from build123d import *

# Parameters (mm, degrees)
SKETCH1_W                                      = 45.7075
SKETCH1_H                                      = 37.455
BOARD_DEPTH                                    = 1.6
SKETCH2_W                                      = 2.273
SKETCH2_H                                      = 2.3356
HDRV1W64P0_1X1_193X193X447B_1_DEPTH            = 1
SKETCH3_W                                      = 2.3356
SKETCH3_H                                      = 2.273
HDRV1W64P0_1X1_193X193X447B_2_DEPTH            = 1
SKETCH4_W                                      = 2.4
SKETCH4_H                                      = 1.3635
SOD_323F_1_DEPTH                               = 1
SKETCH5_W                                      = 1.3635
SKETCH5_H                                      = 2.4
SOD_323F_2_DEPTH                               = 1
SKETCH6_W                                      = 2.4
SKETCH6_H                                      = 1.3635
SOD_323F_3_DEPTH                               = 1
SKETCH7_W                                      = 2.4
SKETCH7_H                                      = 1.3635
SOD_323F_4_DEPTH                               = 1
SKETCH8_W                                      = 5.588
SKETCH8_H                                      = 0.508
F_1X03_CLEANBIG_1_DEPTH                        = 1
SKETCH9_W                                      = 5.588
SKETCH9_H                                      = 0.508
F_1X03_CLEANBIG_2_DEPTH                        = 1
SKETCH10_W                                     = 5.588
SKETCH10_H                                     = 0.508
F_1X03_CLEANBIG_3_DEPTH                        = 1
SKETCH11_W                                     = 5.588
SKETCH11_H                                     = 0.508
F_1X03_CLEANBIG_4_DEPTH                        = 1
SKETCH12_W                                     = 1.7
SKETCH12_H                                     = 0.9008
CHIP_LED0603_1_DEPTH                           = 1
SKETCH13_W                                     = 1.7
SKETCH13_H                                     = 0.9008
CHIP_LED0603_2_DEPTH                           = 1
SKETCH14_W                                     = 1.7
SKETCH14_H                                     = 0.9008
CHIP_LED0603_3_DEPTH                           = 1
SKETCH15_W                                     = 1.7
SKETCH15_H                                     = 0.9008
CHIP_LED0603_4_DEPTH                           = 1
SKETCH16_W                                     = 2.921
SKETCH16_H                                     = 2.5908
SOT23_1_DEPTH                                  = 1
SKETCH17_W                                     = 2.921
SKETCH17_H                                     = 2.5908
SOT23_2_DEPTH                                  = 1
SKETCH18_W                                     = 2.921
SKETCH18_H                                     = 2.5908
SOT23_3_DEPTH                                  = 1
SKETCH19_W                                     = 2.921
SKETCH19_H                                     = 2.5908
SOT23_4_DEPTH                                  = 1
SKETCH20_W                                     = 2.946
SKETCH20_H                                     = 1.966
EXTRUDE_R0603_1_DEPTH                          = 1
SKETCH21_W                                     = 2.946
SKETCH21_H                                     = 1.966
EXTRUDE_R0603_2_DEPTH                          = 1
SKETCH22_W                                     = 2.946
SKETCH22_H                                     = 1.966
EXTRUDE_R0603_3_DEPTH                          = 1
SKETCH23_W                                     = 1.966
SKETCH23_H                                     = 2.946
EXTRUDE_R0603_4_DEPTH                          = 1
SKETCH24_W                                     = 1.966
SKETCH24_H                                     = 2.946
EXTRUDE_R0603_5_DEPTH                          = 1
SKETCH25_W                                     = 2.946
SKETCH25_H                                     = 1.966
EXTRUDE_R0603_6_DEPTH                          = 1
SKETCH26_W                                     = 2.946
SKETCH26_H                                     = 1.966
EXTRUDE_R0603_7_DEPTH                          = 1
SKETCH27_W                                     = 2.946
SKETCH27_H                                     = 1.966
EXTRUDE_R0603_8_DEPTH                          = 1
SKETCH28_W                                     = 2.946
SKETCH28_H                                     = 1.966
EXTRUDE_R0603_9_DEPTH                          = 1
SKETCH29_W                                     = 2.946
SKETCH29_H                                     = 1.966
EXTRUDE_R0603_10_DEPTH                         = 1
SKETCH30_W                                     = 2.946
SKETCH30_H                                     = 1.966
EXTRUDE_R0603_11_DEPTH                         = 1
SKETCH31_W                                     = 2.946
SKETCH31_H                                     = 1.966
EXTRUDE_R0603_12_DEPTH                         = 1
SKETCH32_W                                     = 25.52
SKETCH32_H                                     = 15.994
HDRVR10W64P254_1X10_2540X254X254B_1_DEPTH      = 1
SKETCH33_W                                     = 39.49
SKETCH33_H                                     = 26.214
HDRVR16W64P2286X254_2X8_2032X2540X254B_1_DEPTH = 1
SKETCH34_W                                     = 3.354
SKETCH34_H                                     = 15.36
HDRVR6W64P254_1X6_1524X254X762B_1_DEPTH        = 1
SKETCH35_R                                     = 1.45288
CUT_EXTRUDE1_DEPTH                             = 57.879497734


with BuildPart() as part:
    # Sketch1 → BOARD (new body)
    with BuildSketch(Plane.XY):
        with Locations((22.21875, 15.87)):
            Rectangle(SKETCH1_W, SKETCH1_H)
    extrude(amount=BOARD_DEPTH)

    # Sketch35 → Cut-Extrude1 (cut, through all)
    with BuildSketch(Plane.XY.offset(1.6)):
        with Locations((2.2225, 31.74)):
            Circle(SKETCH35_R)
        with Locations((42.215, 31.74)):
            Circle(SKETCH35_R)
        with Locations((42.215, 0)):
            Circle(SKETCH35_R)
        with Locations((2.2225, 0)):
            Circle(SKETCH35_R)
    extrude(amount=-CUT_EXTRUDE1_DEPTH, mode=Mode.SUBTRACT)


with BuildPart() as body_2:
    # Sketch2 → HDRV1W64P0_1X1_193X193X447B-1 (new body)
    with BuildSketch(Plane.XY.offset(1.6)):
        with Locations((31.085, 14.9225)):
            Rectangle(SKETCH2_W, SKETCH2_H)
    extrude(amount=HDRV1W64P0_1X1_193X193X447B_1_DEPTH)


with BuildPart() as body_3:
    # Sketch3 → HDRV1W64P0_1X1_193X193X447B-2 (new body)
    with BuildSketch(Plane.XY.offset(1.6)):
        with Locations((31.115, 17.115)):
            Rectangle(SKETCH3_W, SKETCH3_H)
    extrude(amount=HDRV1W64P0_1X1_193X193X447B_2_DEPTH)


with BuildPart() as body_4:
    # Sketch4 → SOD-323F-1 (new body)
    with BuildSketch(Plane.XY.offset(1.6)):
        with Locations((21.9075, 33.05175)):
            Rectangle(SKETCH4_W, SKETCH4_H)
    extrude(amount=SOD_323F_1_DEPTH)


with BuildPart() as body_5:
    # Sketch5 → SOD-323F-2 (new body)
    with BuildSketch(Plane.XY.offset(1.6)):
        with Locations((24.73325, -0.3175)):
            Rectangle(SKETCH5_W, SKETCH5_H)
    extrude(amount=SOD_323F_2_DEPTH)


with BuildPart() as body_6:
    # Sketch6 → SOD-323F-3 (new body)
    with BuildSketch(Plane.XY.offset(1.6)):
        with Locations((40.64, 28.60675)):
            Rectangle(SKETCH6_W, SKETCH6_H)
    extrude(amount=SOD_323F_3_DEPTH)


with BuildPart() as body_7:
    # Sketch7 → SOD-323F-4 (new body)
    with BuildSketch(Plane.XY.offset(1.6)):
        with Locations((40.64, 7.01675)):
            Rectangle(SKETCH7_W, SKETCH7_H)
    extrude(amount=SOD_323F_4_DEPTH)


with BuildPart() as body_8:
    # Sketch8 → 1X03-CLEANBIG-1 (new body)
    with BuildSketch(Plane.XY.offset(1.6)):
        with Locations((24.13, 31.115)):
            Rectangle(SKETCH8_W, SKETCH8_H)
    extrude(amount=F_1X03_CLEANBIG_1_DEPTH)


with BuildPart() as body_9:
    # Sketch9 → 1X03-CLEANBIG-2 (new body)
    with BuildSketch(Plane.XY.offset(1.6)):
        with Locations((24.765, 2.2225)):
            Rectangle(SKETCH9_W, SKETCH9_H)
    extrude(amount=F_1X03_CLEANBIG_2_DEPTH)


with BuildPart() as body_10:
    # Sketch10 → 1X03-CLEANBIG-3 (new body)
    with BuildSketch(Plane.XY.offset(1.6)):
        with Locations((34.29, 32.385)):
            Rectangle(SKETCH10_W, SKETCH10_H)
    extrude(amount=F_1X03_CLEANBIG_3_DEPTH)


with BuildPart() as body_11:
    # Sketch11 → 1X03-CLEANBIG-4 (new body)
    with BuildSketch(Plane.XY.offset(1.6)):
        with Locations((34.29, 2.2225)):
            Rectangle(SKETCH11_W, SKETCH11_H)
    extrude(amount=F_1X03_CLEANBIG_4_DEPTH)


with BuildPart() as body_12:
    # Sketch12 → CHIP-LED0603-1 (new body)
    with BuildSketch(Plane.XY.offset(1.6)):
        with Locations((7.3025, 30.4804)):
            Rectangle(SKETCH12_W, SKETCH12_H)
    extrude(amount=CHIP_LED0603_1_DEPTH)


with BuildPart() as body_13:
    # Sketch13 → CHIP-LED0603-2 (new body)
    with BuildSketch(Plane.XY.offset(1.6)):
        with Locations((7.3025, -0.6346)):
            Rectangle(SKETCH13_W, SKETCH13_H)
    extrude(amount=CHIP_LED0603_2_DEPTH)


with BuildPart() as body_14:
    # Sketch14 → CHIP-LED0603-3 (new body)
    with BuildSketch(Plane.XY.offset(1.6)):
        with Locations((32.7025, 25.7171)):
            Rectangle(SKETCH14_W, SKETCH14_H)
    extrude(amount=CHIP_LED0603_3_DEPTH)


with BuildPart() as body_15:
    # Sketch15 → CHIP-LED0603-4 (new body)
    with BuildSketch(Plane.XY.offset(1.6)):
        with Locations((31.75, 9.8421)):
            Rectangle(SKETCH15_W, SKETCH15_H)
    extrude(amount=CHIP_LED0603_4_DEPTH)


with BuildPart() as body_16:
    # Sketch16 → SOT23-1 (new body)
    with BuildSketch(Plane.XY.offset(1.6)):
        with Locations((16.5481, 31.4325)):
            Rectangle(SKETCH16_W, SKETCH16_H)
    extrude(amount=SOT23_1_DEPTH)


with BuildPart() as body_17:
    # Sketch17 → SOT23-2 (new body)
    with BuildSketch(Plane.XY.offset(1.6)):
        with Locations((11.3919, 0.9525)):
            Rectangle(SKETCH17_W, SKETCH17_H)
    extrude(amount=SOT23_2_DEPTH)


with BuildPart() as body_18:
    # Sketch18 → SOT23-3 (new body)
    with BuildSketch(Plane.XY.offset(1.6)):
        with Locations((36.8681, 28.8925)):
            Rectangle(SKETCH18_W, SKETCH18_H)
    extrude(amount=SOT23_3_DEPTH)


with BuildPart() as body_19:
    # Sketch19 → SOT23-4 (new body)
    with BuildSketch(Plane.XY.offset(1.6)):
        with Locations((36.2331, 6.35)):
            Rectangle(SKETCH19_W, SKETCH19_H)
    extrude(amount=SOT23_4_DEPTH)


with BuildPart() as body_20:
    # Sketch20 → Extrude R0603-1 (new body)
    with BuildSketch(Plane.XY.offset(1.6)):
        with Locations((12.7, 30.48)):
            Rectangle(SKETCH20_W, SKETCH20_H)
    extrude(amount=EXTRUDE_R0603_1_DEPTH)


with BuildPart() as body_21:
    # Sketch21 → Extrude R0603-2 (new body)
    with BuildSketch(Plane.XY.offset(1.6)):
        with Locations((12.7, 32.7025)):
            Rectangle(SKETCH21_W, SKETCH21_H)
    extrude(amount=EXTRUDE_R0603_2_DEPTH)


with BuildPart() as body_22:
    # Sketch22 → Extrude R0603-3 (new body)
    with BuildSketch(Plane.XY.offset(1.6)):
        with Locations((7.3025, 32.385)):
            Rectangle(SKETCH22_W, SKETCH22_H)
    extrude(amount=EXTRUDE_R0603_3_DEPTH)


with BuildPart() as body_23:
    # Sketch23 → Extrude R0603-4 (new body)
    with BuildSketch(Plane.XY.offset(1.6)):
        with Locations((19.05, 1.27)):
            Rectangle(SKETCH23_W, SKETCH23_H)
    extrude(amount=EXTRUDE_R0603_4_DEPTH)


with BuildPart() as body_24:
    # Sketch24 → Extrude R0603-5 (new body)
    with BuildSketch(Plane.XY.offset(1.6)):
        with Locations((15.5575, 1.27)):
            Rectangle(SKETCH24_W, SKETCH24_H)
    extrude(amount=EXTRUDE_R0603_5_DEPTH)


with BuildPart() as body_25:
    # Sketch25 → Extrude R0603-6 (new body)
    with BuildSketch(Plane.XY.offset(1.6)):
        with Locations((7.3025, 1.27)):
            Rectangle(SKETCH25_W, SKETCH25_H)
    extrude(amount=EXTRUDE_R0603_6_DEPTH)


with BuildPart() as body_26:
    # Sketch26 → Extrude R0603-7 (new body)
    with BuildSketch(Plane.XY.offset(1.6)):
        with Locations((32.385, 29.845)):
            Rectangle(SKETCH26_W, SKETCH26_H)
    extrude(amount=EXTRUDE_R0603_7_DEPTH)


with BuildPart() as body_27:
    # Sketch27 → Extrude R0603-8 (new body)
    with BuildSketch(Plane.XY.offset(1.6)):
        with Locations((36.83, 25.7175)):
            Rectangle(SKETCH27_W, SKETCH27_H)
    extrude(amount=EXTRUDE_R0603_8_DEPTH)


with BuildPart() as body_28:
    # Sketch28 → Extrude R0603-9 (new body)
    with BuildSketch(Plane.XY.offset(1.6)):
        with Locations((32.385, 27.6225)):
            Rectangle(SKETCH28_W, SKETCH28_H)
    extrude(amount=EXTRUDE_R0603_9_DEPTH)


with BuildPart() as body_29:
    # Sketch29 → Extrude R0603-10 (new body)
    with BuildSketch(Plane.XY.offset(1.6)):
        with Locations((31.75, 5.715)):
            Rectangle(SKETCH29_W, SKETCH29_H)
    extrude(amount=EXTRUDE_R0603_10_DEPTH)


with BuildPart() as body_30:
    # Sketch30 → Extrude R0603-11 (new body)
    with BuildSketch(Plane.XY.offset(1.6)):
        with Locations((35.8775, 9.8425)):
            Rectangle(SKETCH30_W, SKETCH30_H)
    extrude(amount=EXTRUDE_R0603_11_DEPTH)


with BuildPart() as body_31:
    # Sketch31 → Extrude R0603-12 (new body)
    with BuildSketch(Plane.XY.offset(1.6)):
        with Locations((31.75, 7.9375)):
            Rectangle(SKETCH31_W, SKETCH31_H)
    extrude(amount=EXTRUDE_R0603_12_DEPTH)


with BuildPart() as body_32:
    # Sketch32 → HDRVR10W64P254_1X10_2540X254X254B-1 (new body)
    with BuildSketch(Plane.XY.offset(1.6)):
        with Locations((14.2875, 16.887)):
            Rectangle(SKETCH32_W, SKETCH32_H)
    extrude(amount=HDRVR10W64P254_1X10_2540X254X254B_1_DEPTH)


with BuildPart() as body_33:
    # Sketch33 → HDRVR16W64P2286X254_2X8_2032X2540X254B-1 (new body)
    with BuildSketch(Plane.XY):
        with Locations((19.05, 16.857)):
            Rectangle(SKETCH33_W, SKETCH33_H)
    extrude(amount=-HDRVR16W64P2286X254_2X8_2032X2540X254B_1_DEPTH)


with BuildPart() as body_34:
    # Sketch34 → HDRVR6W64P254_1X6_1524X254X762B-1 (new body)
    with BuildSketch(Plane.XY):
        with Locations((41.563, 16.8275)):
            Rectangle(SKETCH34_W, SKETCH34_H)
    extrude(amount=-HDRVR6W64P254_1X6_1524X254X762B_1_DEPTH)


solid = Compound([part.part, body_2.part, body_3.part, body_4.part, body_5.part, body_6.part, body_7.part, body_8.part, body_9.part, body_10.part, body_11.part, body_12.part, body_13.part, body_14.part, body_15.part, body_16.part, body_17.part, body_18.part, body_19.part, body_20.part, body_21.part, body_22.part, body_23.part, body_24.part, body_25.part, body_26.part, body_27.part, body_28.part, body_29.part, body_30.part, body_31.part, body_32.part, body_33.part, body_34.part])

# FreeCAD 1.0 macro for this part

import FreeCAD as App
import Part
import Sketcher

V = App.Vector
Q = App.Units.Quantity


def add_polygon(sketch, points):
    """Adds a closed chain of lines whose ends are joined by coincident constraints."""
    first, n = sketch.GeometryCount, len(points)
    for a, b in zip(points, points[1:] + points[:1]):
        sketch.addGeometry(Part.LineSegment(App.Vector(*a, 0), App.Vector(*b, 0)), False)
    for i in range(n):
        sketch.addConstraint(Sketcher.Constraint("Coincident", first + i, 2, first + (i + 1) % n, 1))

doc = App.newDocument("Part")
body = doc.addObject("PartDesign::Body", "Body")

# Sketch on XY plane
sketch1 = doc.addObject("Sketcher::SketchObject", "Sketch")
body.addObject(sketch1)
sketch1.AttachmentSupport = (doc.XY_Plane, [""])
sketch1.MapMode = "FlatFace"
add_polygon(sketch1, [(-1, 35), (-1, -3), (45, -3), (45, 35)])  # lines 0-3
sketch1.addConstraint([
    Sketcher.Constraint("Vertical", 0),
    Sketcher.Constraint("Horizontal", 1),
    Sketcher.Constraint("Vertical", 2),
    Sketcher.Constraint("Horizontal", 3),
    Sketcher.Constraint("DistanceY", 0, 2, 0, 1, Q("37.455 mm")),
    Sketcher.Constraint("DistanceX", 1, 1, 1, 2, Q("45.7075 mm")),
    Sketcher.Constraint("DistanceX", 0, 2, -1, 1, Q("0.635 mm")),
    Sketcher.Constraint("DistanceY", 0, 2, -1, 1, Q("2.8575 mm")),
])
pad1 = doc.addObject("PartDesign::Pad", "Pad")
body.addObject(pad1)
pad1.Profile = sketch1
pad1.Length = 1.6

# Sketch on XY plane
sketch2 = doc.addObject("Sketcher::SketchObject", "Sketch001")
body.addObject(sketch2)
sketch2.AttachmentSupport = (doc.XY_Plane, [""])
sketch2.MapMode = "FlatFace"
sketch2.AttachmentOffset = App.Placement(V(0, 0, 1.6), App.Rotation())
sketch2.addGeometry([
    Part.Circle(V(2.2, 31.7, 0), V(0, 0, 1), 1.5),
    Part.Circle(V(42.2, 31.7, 0), V(0, 0, 1), 1.5),
    Part.Circle(V(42.2, 0, 0), V(0, 0, 1), 1.5),
    Part.Circle(V(2.2, 0, 0), V(0, 0, 1), 1.5),
], False)
sketch2.addConstraint([
    Sketcher.Constraint("Equal", 0, 1),
    Sketcher.Constraint("Equal", 1, 2),
    Sketcher.Constraint("Equal", 2, 3),
    Sketcher.Constraint("PointOnObject", 2, 3, -1),
    Sketcher.Constraint("PointOnObject", 3, 3, -1),
    Sketcher.Constraint("Horizontal", 0, 3, 1, 3),
    Sketcher.Constraint("Vertical", 1, 3, 2, 3),
    Sketcher.Constraint("Vertical", 0, 3, 3, 3),
    Sketcher.Constraint("Diameter", 0, Q("2.90576 mm")),
    Sketcher.Constraint("DistanceY", -1, 1, 0, 3, Q("31.74 mm")),
    Sketcher.Constraint("DistanceX", -1, 1, 1, 3, Q("42.215 mm")),
    Sketcher.Constraint("DistanceX", -1, 1, 0, 3, Q("2.2225 mm")),
])
pocket1 = doc.addObject("PartDesign::Pocket", "Pocket")
body.addObject(pocket1)
pocket1.Profile = sketch2
pocket1.Type = "ThroughAll"
body2 = doc.addObject("PartDesign::Body", "Body001")

# Sketch on XY plane
sketch3 = doc.addObject("Sketcher::SketchObject", "Sketch002")
body2.addObject(sketch3)
sketch3.AttachmentSupport = (doc.getObject("XY_Plane001"), [""])
sketch3.MapMode = "FlatFace"
sketch3.AttachmentOffset = App.Placement(V(0, 0, 1.6), App.Rotation())
add_polygon(sketch3, [(29.9, 16.1), (29.9, 13.8), (32.2, 13.8), (32.2, 16.1)])  # lines 0-3
sketch3.addConstraint([
    Sketcher.Constraint("Vertical", 0),
    Sketcher.Constraint("Horizontal", 1),
    Sketcher.Constraint("Vertical", 2),
    Sketcher.Constraint("Horizontal", 3),
    Sketcher.Constraint("DistanceX", 1, 1, 1, 2, Q("2.273 mm")),
    Sketcher.Constraint("DistanceY", 0, 2, 0, 1, Q("2.3356 mm")),
    Sketcher.Constraint("DistanceX", -1, 1, 0, 2, Q("29.9485 mm")),
    Sketcher.Constraint("DistanceY", -1, 1, 0, 2, Q("13.7547 mm")),
])
pad2 = doc.addObject("PartDesign::Pad", "Pad001")
body2.addObject(pad2)
pad2.Profile = sketch3
pad2.Length = 1
body3 = doc.addObject("PartDesign::Body", "Body002")

# Sketch on XY plane
sketch4 = doc.addObject("Sketcher::SketchObject", "Sketch003")
body3.addObject(sketch4)
sketch4.AttachmentSupport = (doc.getObject("XY_Plane002"), [""])
sketch4.MapMode = "FlatFace"
sketch4.AttachmentOffset = App.Placement(V(0, 0, 1.6), App.Rotation())
add_polygon(sketch4, [(29.9, 18.3), (29.9, 16), (32.3, 16), (32.3, 18.3)])  # lines 0-3
sketch4.addConstraint([
    Sketcher.Constraint("Vertical", 0),
    Sketcher.Constraint("Horizontal", 1),
    Sketcher.Constraint("Vertical", 2),
    Sketcher.Constraint("Horizontal", 3),
    Sketcher.Constraint("DistanceY", 0, 2, 0, 1, Q("2.273 mm")),
    Sketcher.Constraint("DistanceX", 1, 1, 1, 2, Q("2.3356 mm")),
    Sketcher.Constraint("DistanceX", -1, 1, 0, 2, Q("29.9472 mm")),
    Sketcher.Constraint("DistanceY", -1, 1, 0, 2, Q("15.9785 mm")),
])
pad3 = doc.addObject("PartDesign::Pad", "Pad002")
body3.addObject(pad3)
pad3.Profile = sketch4
pad3.Length = 1
body4 = doc.addObject("PartDesign::Body", "Body003")

# Sketch on XY plane
sketch5 = doc.addObject("Sketcher::SketchObject", "Sketch004")
body4.addObject(sketch5)
sketch5.AttachmentSupport = (doc.getObject("XY_Plane003"), [""])
sketch5.MapMode = "FlatFace"
sketch5.AttachmentOffset = App.Placement(V(0, 0, 1.6), App.Rotation())
add_polygon(sketch5, [(20.7, 33.7), (20.7, 32.4), (23.1, 32.4), (23.1, 33.7)])  # lines 0-3
sketch5.addConstraint([
    Sketcher.Constraint("Vertical", 0),
    Sketcher.Constraint("Horizontal", 1),
    Sketcher.Constraint("Vertical", 2),
    Sketcher.Constraint("Horizontal", 3),
    Sketcher.Constraint("DistanceX", 1, 1, 1, 2, Q("2.4 mm")),
    Sketcher.Constraint("DistanceY", -1, 1, 0, 2, Q("32.37 mm")),
    Sketcher.Constraint("DistanceY", 0, 2, 0, 1, Q("1.3635 mm")),
    Sketcher.Constraint("DistanceX", -1, 1, 0, 2, Q("20.7075 mm")),
])
pad4 = doc.addObject("PartDesign::Pad", "Pad003")
body4.addObject(pad4)
pad4.Profile = sketch5
pad4.Length = 1
body5 = doc.addObject("PartDesign::Body", "Body004")

# Sketch on XY plane
sketch6 = doc.addObject("Sketcher::SketchObject", "Sketch005")
body5.addObject(sketch6)
sketch6.AttachmentSupport = (doc.getObject("XY_Plane004"), [""])
sketch6.MapMode = "FlatFace"
sketch6.AttachmentOffset = App.Placement(V(0, 0, 1.6), App.Rotation())
add_polygon(sketch6, [(24.1, 0.9), (24.1, -1.5), (25.4, -1.5), (25.4, 0.9)])  # lines 0-3
sketch6.addConstraint([
    Sketcher.Constraint("Vertical", 0),
    Sketcher.Constraint("Horizontal", 1),
    Sketcher.Constraint("Vertical", 2),
    Sketcher.Constraint("Horizontal", 3),
    Sketcher.Constraint("DistanceY", 0, 2, 0, 1, Q("2.4 mm")),
    Sketcher.Constraint("DistanceX", 1, 1, 1, 2, Q("1.3635 mm")),
    Sketcher.Constraint("DistanceX", -1, 1, 1, 2, Q("25.415 mm")),
    Sketcher.Constraint("DistanceY", 0, 2, -1, 1, Q("1.5175 mm")),
])
pad5 = doc.addObject("PartDesign::Pad", "Pad004")
body5.addObject(pad5)
pad5.Profile = sketch6
pad5.Length = 1
body6 = doc.addObject("PartDesign::Body", "Body005")

# Sketch on XY plane
sketch7 = doc.addObject("Sketcher::SketchObject", "Sketch006")
body6.addObject(sketch7)
sketch7.AttachmentSupport = (doc.getObject("XY_Plane005"), [""])
sketch7.MapMode = "FlatFace"
sketch7.AttachmentOffset = App.Placement(V(0, 0, 1.6), App.Rotation())
add_polygon(sketch7, [(39.4, 29.3), (39.4, 27.9), (41.8, 27.9), (41.8, 29.3)])  # lines 0-3
sketch7.addConstraint([
    Sketcher.Constraint("Vertical", 0),
    Sketcher.Constraint("Horizontal", 1),
    Sketcher.Constraint("Vertical", 2),
    Sketcher.Constraint("Horizontal", 3),
    Sketcher.Constraint("DistanceX", 1, 1, 1, 2, Q("2.4 mm")),
    Sketcher.Constraint("DistanceX", -1, 1, 0, 2, Q("39.44 mm")),
    Sketcher.Constraint("DistanceY", 0, 2, 0, 1, Q("1.3635 mm")),
    Sketcher.Constraint("DistanceY", -1, 1, 0, 2, Q("27.925 mm")),
])
pad6 = doc.addObject("PartDesign::Pad", "Pad005")
body6.addObject(pad6)
pad6.Profile = sketch7
pad6.Length = 1
body7 = doc.addObject("PartDesign::Body", "Body006")

# Sketch on XY plane
sketch8 = doc.addObject("Sketcher::SketchObject", "Sketch007")
body7.addObject(sketch8)
sketch8.AttachmentSupport = (doc.getObject("XY_Plane006"), [""])
sketch8.MapMode = "FlatFace"
sketch8.AttachmentOffset = App.Placement(V(0, 0, 1.6), App.Rotation())
add_polygon(sketch8, [(39.4, 7.7), (39.4, 6.3), (41.8, 6.3), (41.8, 7.7)])  # lines 0-3
sketch8.addConstraint([
    Sketcher.Constraint("Vertical", 0),
    Sketcher.Constraint("Horizontal", 1),
    Sketcher.Constraint("Vertical", 2),
    Sketcher.Constraint("Horizontal", 3),
    Sketcher.Constraint("DistanceX", 1, 1, 1, 2, Q("2.4 mm")),
    Sketcher.Constraint("DistanceX", -1, 1, 0, 2, Q("39.44 mm")),
    Sketcher.Constraint("DistanceY", 0, 2, 0, 1, Q("1.3635 mm")),
    Sketcher.Constraint("DistanceY", -1, 1, 0, 2, Q("6.335 mm")),
])
pad7 = doc.addObject("PartDesign::Pad", "Pad006")
body7.addObject(pad7)
pad7.Profile = sketch8
pad7.Length = 1
body8 = doc.addObject("PartDesign::Body", "Body007")

# Sketch on XY plane
sketch9 = doc.addObject("Sketcher::SketchObject", "Sketch008")
body8.addObject(sketch9)
sketch9.AttachmentSupport = (doc.getObject("XY_Plane007"), [""])
sketch9.MapMode = "FlatFace"
sketch9.AttachmentOffset = App.Placement(V(0, 0, 1.6), App.Rotation())
add_polygon(sketch9, [(21.3, 31.4), (21.3, 30.9), (26.9, 30.9), (26.9, 31.4)])  # lines 0-3
sketch9.addConstraint([
    Sketcher.Constraint("Vertical", 0),
    Sketcher.Constraint("Horizontal", 1),
    Sketcher.Constraint("Vertical", 2),
    Sketcher.Constraint("Horizontal", 3),
    Sketcher.Constraint("DistanceX", 1, 1, 1, 2, Q("5.588 mm")),
    Sketcher.Constraint("DistanceY", 0, 2, 0, 1, Q("0.508 mm")),
    Sketcher.Constraint("DistanceX", -1, 1, 0, 2, Q("21.336 mm")),
    Sketcher.Constraint("DistanceY", -1, 1, 0, 2, Q("30.861 mm")),
])
pad8 = doc.addObject("PartDesign::Pad", "Pad007")
body8.addObject(pad8)
pad8.Profile = sketch9
pad8.Length = 1
body9 = doc.addObject("PartDesign::Body", "Body008")

# Sketch on XY plane
sketch10 = doc.addObject("Sketcher::SketchObject", "Sketch009")
body9.addObject(sketch10)
sketch10.AttachmentSupport = (doc.getObject("XY_Plane008"), [""])
sketch10.MapMode = "FlatFace"
sketch10.AttachmentOffset = App.Placement(V(0, 0, 1.6), App.Rotation())
add_polygon(sketch10, [(22, 2.5), (22, 2), (27.6, 2), (27.6, 2.5)])  # lines 0-3
sketch10.addConstraint([
    Sketcher.Constraint("Vertical", 0),
    Sketcher.Constraint("Horizontal", 1),
    Sketcher.Constraint("Vertical", 2),
    Sketcher.Constraint("Horizontal", 3),
    Sketcher.Constraint("DistanceX", 1, 1, 1, 2, Q("5.588 mm")),
    Sketcher.Constraint("DistanceY", 0, 2, 0, 1, Q("0.508 mm")),
    Sketcher.Constraint("DistanceX", -1, 1, 0, 2, Q("21.971 mm")),
    Sketcher.Constraint("DistanceY", -1, 1, 0, 2, Q("1.9685 mm")),
])
pad9 = doc.addObject("PartDesign::Pad", "Pad008")
body9.addObject(pad9)
pad9.Profile = sketch10
pad9.Length = 1
body10 = doc.addObject("PartDesign::Body", "Body009")

# Sketch on XY plane
sketch11 = doc.addObject("Sketcher::SketchObject", "Sketch010")
body10.addObject(sketch11)
sketch11.AttachmentSupport = (doc.getObject("XY_Plane009"), [""])
sketch11.MapMode = "FlatFace"
sketch11.AttachmentOffset = App.Placement(V(0, 0, 1.6), App.Rotation())
add_polygon(sketch11, [(31.5, 32.6), (31.5, 32.1), (37.1, 32.1), (37.1, 32.6)])  # lines 0-3
sketch11.addConstraint([
    Sketcher.Constraint("Vertical", 0),
    Sketcher.Constraint("Horizontal", 1),
    Sketcher.Constraint("Vertical", 2),
    Sketcher.Constraint("Horizontal", 3),
    Sketcher.Constraint("DistanceX", 1, 1, 1, 2, Q("5.588 mm")),
    Sketcher.Constraint("DistanceY", 0, 2, 0, 1, Q("0.508 mm")),
    Sketcher.Constraint("DistanceX", -1, 1, 0, 2, Q("31.496 mm")),
    Sketcher.Constraint("DistanceY", -1, 1, 0, 2, Q("32.131 mm")),
])
pad10 = doc.addObject("PartDesign::Pad", "Pad009")
body10.addObject(pad10)
pad10.Profile = sketch11
pad10.Length = 1
body11 = doc.addObject("PartDesign::Body", "Body010")

# Sketch on XY plane
sketch12 = doc.addObject("Sketcher::SketchObject", "Sketch011")
body11.addObject(sketch12)
sketch12.AttachmentSupport = (doc.getObject("XY_Plane010"), [""])
sketch12.MapMode = "FlatFace"
sketch12.AttachmentOffset = App.Placement(V(0, 0, 1.6), App.Rotation())
add_polygon(sketch12, [(31.5, 2.5), (31.5, 2), (37.1, 2), (37.1, 2.5)])  # lines 0-3
sketch12.addConstraint([
    Sketcher.Constraint("Vertical", 0),
    Sketcher.Constraint("Horizontal", 1),
    Sketcher.Constraint("Vertical", 2),
    Sketcher.Constraint("Horizontal", 3),
    Sketcher.Constraint("DistanceX", 1, 1, 1, 2, Q("5.588 mm")),
    Sketcher.Constraint("DistanceY", 0, 2, 0, 1, Q("0.508 mm")),
    Sketcher.Constraint("DistanceX", -1, 1, 0, 2, Q("31.496 mm")),
    Sketcher.Constraint("DistanceY", -1, 1, 0, 2, Q("1.9685 mm")),
])
pad11 = doc.addObject("PartDesign::Pad", "Pad010")
body11.addObject(pad11)
pad11.Profile = sketch12
pad11.Length = 1
body12 = doc.addObject("PartDesign::Body", "Body011")

# Sketch on XY plane
sketch13 = doc.addObject("Sketcher::SketchObject", "Sketch012")
body12.addObject(sketch13)
sketch13.AttachmentSupport = (doc.getObject("XY_Plane011"), [""])
sketch13.MapMode = "FlatFace"
sketch13.AttachmentOffset = App.Placement(V(0, 0, 1.6), App.Rotation())
add_polygon(sketch13, [(6.5, 30.9), (6.5, 30), (8.2, 30), (8.2, 30.9)])  # lines 0-3
sketch13.addConstraint([
    Sketcher.Constraint("Vertical", 0),
    Sketcher.Constraint("Horizontal", 1),
    Sketcher.Constraint("Vertical", 2),
    Sketcher.Constraint("Horizontal", 3),
    Sketcher.Constraint("DistanceX", 1, 1, 1, 2, Q("1.7 mm")),
    Sketcher.Constraint("DistanceY", -1, 1, 0, 2, Q("30.03 mm")),
    Sketcher.Constraint("DistanceY", 0, 2, 0, 1, Q("0.9008 mm")),
    Sketcher.Constraint("DistanceX", -1, 1, 0, 2, Q("6.4525 mm")),
])
pad12 = doc.addObject("PartDesign::Pad", "Pad011")
body12.addObject(pad12)
pad12.Profile = sketch13
pad12.Length = 1
body13 = doc.addObject("PartDesign::Body", "Body012")

# Sketch on XY plane
sketch14 = doc.addObject("Sketcher::SketchObject", "Sketch013")
body13.addObject(sketch14)
sketch14.AttachmentSupport = (doc.getObject("XY_Plane012"), [""])
sketch14.MapMode = "FlatFace"
sketch14.AttachmentOffset = App.Placement(V(0, 0, 1.6), App.Rotation())
add_polygon(sketch14, [(6.5, -0.2), (6.5, -1.1), (8.2, -1.1), (8.2, -0.2)])  # lines 0-3
sketch14.addConstraint([
    Sketcher.Constraint("Vertical", 0),
    Sketcher.Constraint("Horizontal", 1),
    Sketcher.Constraint("Vertical", 2),
    Sketcher.Constraint("Horizontal", 3),
    Sketcher.Constraint("DistanceX", 1, 1, 1, 2, Q("1.7 mm")),
    Sketcher.Constraint("DistanceY", 0, 2, 0, 1, Q("0.9008 mm")),
    Sketcher.Constraint("DistanceY", 0, 2, -1, 1, Q("1.085 mm")),
    Sketcher.Constraint("DistanceX", -1, 1, 0, 2, Q("6.4525 mm")),
])
pad13 = doc.addObject("PartDesign::Pad", "Pad012")
body13.addObject(pad13)
pad13.Profile = sketch14
pad13.Length = 1
body14 = doc.addObject("PartDesign::Body", "Body013")

# Sketch on XY plane
sketch15 = doc.addObject("Sketcher::SketchObject", "Sketch014")
body14.addObject(sketch15)
sketch15.AttachmentSupport = (doc.getObject("XY_Plane013"), [""])
sketch15.MapMode = "FlatFace"
sketch15.AttachmentOffset = App.Placement(V(0, 0, 1.6), App.Rotation())
add_polygon(sketch15, [(31.9, 26.2), (31.9, 25.3), (33.6, 25.3), (33.6, 26.2)])  # lines 0-3
sketch15.addConstraint([
    Sketcher.Constraint("Vertical", 0),
    Sketcher.Constraint("Horizontal", 1),
    Sketcher.Constraint("Vertical", 2),
    Sketcher.Constraint("Horizontal", 3),
    Sketcher.Constraint("DistanceX", 1, 1, 1, 2, Q("1.7 mm")),
    Sketcher.Constraint("DistanceY", 0, 2, 0, 1, Q("0.9008 mm")),
    Sketcher.Constraint("DistanceX", -1, 1, 0, 2, Q("31.8525 mm")),
    Sketcher.Constraint("DistanceY", -1, 1, 0, 2, Q("25.2667 mm")),
])
pad14 = doc.addObject("PartDesign::Pad", "Pad013")
body14.addObject(pad14)
pad14.Profile = sketch15
pad14.Length = 1
body15 = doc.addObject("PartDesign::Body", "Body014")

# Sketch on XY plane
sketch16 = doc.addObject("Sketcher::SketchObject", "Sketch015")
body15.addObject(sketch16)
sketch16.AttachmentSupport = (doc.getObject("XY_Plane014"), [""])
sketch16.MapMode = "FlatFace"
sketch16.AttachmentOffset = App.Placement(V(0, 0, 1.6), App.Rotation())
add_polygon(sketch16, [(30.9, 10.3), (30.9, 9.4), (32.6, 9.4), (32.6, 10.3)])  # lines 0-3
sketch16.addConstraint([
    Sketcher.Constraint("Vertical", 0),
    Sketcher.Constraint("Horizontal", 1),
    Sketcher.Constraint("Vertical", 2),
    Sketcher.Constraint("Horizontal", 3),
    Sketcher.Constraint("DistanceX", 1, 1, 1, 2, Q("1.7 mm")),
    Sketcher.Constraint("DistanceX", -1, 1, 0, 2, Q("30.9 mm")),
    Sketcher.Constraint("DistanceY", 0, 2, 0, 1, Q("0.9008 mm")),
    Sketcher.Constraint("DistanceY", -1, 1, 0, 2, Q("9.3917 mm")),
])
pad15 = doc.addObject("PartDesign::Pad", "Pad014")
body15.addObject(pad15)
pad15.Profile = sketch16
pad15.Length = 1
body16 = doc.addObject("PartDesign::Body", "Body015")

# Sketch on XY plane
sketch17 = doc.addObject("Sketcher::SketchObject", "Sketch016")
body16.addObject(sketch17)
sketch17.AttachmentSupport = (doc.getObject("XY_Plane015"), [""])
sketch17.MapMode = "FlatFace"
sketch17.AttachmentOffset = App.Placement(V(0, 0, 1.6), App.Rotation())
add_polygon(sketch17, [(15.1, 32.7), (15.1, 30.1), (18, 30.1), (18, 32.7)])  # lines 0-3
sketch17.addConstraint([
    Sketcher.Constraint("Vertical", 0),
    Sketcher.Constraint("Horizontal", 1),
    Sketcher.Constraint("Vertical", 2),
    Sketcher.Constraint("Horizontal", 3),
    Sketcher.Constraint("DistanceX", 1, 1, 1, 2, Q("2.921 mm")),
    Sketcher.Constraint("DistanceY", 0, 2, 0, 1, Q("2.5908 mm")),
    Sketcher.Constraint("DistanceX", -1, 1, 0, 2, Q("15.0876 mm")),
    Sketcher.Constraint("DistanceY", -1, 1, 0, 2, Q("30.1371 mm")),
])
pad16 = doc.addObject("PartDesign::Pad", "Pad015")
body16.addObject(pad16)
pad16.Profile = sketch17
pad16.Length = 1
body17 = doc.addObject("PartDesign::Body", "Body016")

# Sketch on XY plane
sketch18 = doc.addObject("Sketcher::SketchObject", "Sketch017")
body17.addObject(sketch18)
sketch18.AttachmentSupport = (doc.getObject("XY_Plane016"), [""])
sketch18.MapMode = "FlatFace"
sketch18.AttachmentOffset = App.Placement(V(0, 0, 1.6), App.Rotation())
add_polygon(sketch18, [(9.9, 2.2), (9.9, -0.3), (12.9, -0.3), (12.9, 2.2)])  # lines 0-3
sketch18.addConstraint([
    Sketcher.Constraint("Vertical", 0),
    Sketcher.Constraint("Horizontal", 1),
    Sketcher.Constraint("Vertical", 2),
    Sketcher.Constraint("Horizontal", 3),
    Sketcher.Constraint("DistanceX", 1, 1, 1, 2, Q("2.921 mm")),
    Sketcher.Constraint("DistanceY", 0, 2, 0, 1, Q("2.5908 mm")),
    Sketcher.Constraint("DistanceX", -1, 1, 0, 2, Q("9.9314 mm")),
    Sketcher.Constraint("DistanceY", 0, 2, -1, 1, Q("0.3429 mm")),
])
pad17 = doc.addObject("PartDesign::Pad", "Pad016")
body17.addObject(pad17)
pad17.Profile = sketch18
pad17.Length = 1
body18 = doc.addObject("PartDesign::Body", "Body017")

# Sketch on XY plane
sketch19 = doc.addObject("Sketcher::SketchObject", "Sketch018")
body18.addObject(sketch19)
sketch19.AttachmentSupport = (doc.getObject("XY_Plane017"), [""])
sketch19.MapMode = "FlatFace"
sketch19.AttachmentOffset = App.Placement(V(0, 0, 1.6), App.Rotation())
add_polygon(sketch19, [(35.4, 30.2), (35.4, 27.6), (38.3, 27.6), (38.3, 30.2)])  # lines 0-3
sketch19.addConstraint([
    Sketcher.Constraint("Vertical", 0),
    Sketcher.Constraint("Horizontal", 1),
    Sketcher.Constraint("Vertical", 2),
    Sketcher.Constraint("Horizontal", 3),
    Sketcher.Constraint("DistanceX", 1, 1, 1, 2, Q("2.921 mm")),
    Sketcher.Constraint("DistanceY", 0, 2, 0, 1, Q("2.5908 mm")),
    Sketcher.Constraint("DistanceX", -1, 1, 0, 2, Q("35.4076 mm")),
    Sketcher.Constraint("DistanceY", -1, 1, 0, 2, Q("27.5971 mm")),
])
pad18 = doc.addObject("PartDesign::Pad", "Pad017")
body18.addObject(pad18)
pad18.Profile = sketch19
pad18.Length = 1
body19 = doc.addObject("PartDesign::Body", "Body018")

# Sketch on XY plane
sketch20 = doc.addObject("Sketcher::SketchObject", "Sketch019")
body19.addObject(sketch20)
sketch20.AttachmentSupport = (doc.getObject("XY_Plane018"), [""])
sketch20.MapMode = "FlatFace"
sketch20.AttachmentOffset = App.Placement(V(0, 0, 1.6), App.Rotation())
add_polygon(sketch20, [(34.8, 7.6), (34.8, 5.1), (37.7, 5.1), (37.7, 7.6)])  # lines 0-3
sketch20.addConstraint([
    Sketcher.Constraint("Vertical", 0),
    Sketcher.Constraint("Horizontal", 1),
    Sketcher.Constraint("Vertical", 2),
    Sketcher.Constraint("Horizontal", 3),
    Sketcher.Constraint("DistanceX", 1, 1, 1, 2, Q("2.921 mm")),
    Sketcher.Constraint("DistanceY", 0, 2, 0, 1, Q("2.5908 mm")),
    Sketcher.Constraint("DistanceX", -1, 1, 0, 2, Q("34.7726 mm")),
    Sketcher.Constraint("DistanceY", -1, 1, 0, 2, Q("5.0546 mm")),
])
pad19 = doc.addObject("PartDesign::Pad", "Pad018")
body19.addObject(pad19)
pad19.Profile = sketch20
pad19.Length = 1
body20 = doc.addObject("PartDesign::Body", "Body019")

# Sketch on XY plane
sketch21 = doc.addObject("Sketcher::SketchObject", "Sketch020")
body20.addObject(sketch21)
sketch21.AttachmentSupport = (doc.getObject("XY_Plane019"), [""])
sketch21.MapMode = "FlatFace"
sketch21.AttachmentOffset = App.Placement(V(0, 0, 1.6), App.Rotation())
add_polygon(sketch21, [(11.2, 31.5), (11.2, 29.5), (14.2, 29.5), (14.2, 31.5)])  # lines 0-3
sketch21.addConstraint([
    Sketcher.Constraint("Vertical", 0),
    Sketcher.Constraint("Horizontal", 1),
    Sketcher.Constraint("Vertical", 2),
    Sketcher.Constraint("Horizontal", 3),
    Sketcher.Constraint("DistanceX", 1, 1, 1, 2, Q("2.946 mm")),
    Sketcher.Constraint("DistanceY", 0, 2, 0, 1, Q("1.966 mm")),
    Sketcher.Constraint("DistanceX", -1, 1, 0, 2, Q("11.227 mm")),
    Sketcher.Constraint("DistanceY", -1, 1, 0, 2, Q("29.497 mm")),
])
pad20 = doc.addObject("PartDesign::Pad", "Pad019")
body20.addObject(pad20)
pad20.Profile = sketch21
pad20.Length = 1
body21 = doc.addObject("PartDesign::Body", "Body020")

# Sketch on XY plane
sketch22 = doc.addObject("Sketcher::SketchObject", "Sketch021")
body21.addObject(sketch22)
sketch22.AttachmentSupport = (doc.getObject("XY_Plane020"), [""])
sketch22.MapMode = "FlatFace"
sketch22.AttachmentOffset = App.Placement(V(0, 0, 1.6), App.Rotation())
add_polygon(sketch22, [(11.2, 33.7), (11.2, 31.7), (14.2, 31.7), (14.2, 33.7)])  # lines 0-3
sketch22.addConstraint([
    Sketcher.Constraint("Vertical", 0),
    Sketcher.Constraint("Horizontal", 1),
    Sketcher.Constraint("Vertical", 2),
    Sketcher.Constraint("Horizontal", 3),
    Sketcher.Constraint("DistanceX", 1, 1, 1, 2, Q("2.946 mm")),
    Sketcher.Constraint("DistanceY", 0, 2, 0, 1, Q("1.966 mm")),
    Sketcher.Constraint("DistanceX", -1, 1, 0, 2, Q("11.227 mm")),
    Sketcher.Constraint("DistanceY", -1, 1, 0, 2, Q("31.7195 mm")),
])
pad21 = doc.addObject("PartDesign::Pad", "Pad020")
body21.addObject(pad21)
pad21.Profile = sketch22
pad21.Length = 1
body22 = doc.addObject("PartDesign::Body", "Body021")

# Sketch on XY plane
sketch23 = doc.addObject("Sketcher::SketchObject", "Sketch022")
body22.addObject(sketch23)
sketch23.AttachmentSupport = (doc.getObject("XY_Plane021"), [""])
sketch23.MapMode = "FlatFace"
sketch23.AttachmentOffset = App.Placement(V(0, 0, 1.6), App.Rotation())
add_polygon(sketch23, [(5.8, 33.4), (5.8, 31.4), (8.8, 31.4), (8.8, 33.4)])  # lines 0-3
sketch23.addConstraint([
    Sketcher.Constraint("Vertical", 0),
    Sketcher.Constraint("Horizontal", 1),
    Sketcher.Constraint("Vertical", 2),
    Sketcher.Constraint("Horizontal", 3),
    Sketcher.Constraint("DistanceX", 1, 1, 1, 2, Q("2.946 mm")),
    Sketcher.Constraint("DistanceY", 0, 2, 0, 1, Q("1.966 mm")),
    Sketcher.Constraint("DistanceY", -1, 1, 0, 2, Q("31.402 mm")),
    Sketcher.Constraint("DistanceX", -1, 1, 0, 2, Q("5.8295 mm")),
])
pad22 = doc.addObject("PartDesign::Pad", "Pad021")
body22.addObject(pad22)
pad22.Profile = sketch23
pad22.Length = 1
body23 = doc.addObject("PartDesign::Body", "Body022")

# Sketch on XY plane
sketch24 = doc.addObject("Sketcher::SketchObject", "Sketch023")
body23.addObject(sketch24)
sketch24.AttachmentSupport = (doc.getObject("XY_Plane022"), [""])
sketch24.MapMode = "FlatFace"
sketch24.AttachmentOffset = App.Placement(V(0, 0, 1.6), App.Rotation())
add_polygon(sketch24, [(18.1, 2.7), (18.1, -0.2), (20, -0.2), (20, 2.7)])  # lines 0-3
sketch24.addConstraint([
    Sketcher.Constraint("Vertical", 0),
    Sketcher.Constraint("Horizontal", 1),
    Sketcher.Constraint("Vertical", 2),
    Sketcher.Constraint("Horizontal", 3),
    Sketcher.Constraint("DistanceX", 1, 1, 1, 2, Q("1.966 mm")),
    Sketcher.Constraint("DistanceY", 0, 2, 0, 1, Q("2.946 mm")),
    Sketcher.Constraint("DistanceX", -1, 1, 0, 2, Q("18.067 mm")),
    Sketcher.Constraint("DistanceY", 0, 2, -1, 1, Q("0.203 mm")),
])
pad23 = doc.addObject("PartDesign::Pad", "Pad022")
body23.addObject(pad23)
pad23.Profile = sketch24
pad23.Length = 1
body24 = doc.addObject("PartDesign::Body", "Body023")

# Sketch on XY plane
sketch25 = doc.addObject("Sketcher::SketchObject", "Sketch024")
body24.addObject(sketch25)
sketch25.AttachmentSupport = (doc.getObject("XY_Plane023"), [""])
sketch25.MapMode = "FlatFace"
sketch25.AttachmentOffset = App.Placement(V(0, 0, 1.6), App.Rotation())
add_polygon(sketch25, [(14.6, 2.7), (14.6, -0.2), (16.5, -0.2), (16.5, 2.7)])  # lines 0-3
sketch25.addConstraint([
    Sketcher.Constraint("Vertical", 0),
    Sketcher.Constraint("Horizontal", 1),
    Sketcher.Constraint("Vertical", 2),
    Sketcher.Constraint("Horizontal", 3),
    Sketcher.Constraint("DistanceX", 1, 1, 1, 2, Q("1.966 mm")),
    Sketcher.Constraint("DistanceY", 0, 2, 0, 1, Q("2.946 mm")),
    Sketcher.Constraint("DistanceY", 0, 2, -1, 1, Q("0.203 mm")),
    Sketcher.Constraint("DistanceX", -1, 1, 0, 2, Q("14.5745 mm")),
])
pad24 = doc.addObject("PartDesign::Pad", "Pad023")
body24.addObject(pad24)
pad24.Profile = sketch25
pad24.Length = 1
body25 = doc.addObject("PartDesign::Body", "Body024")

# Sketch on XY plane
sketch26 = doc.addObject("Sketcher::SketchObject", "Sketch025")
body25.addObject(sketch26)
sketch26.AttachmentSupport = (doc.getObject("XY_Plane024"), [""])
sketch26.MapMode = "FlatFace"
sketch26.AttachmentOffset = App.Placement(V(0, 0, 1.6), App.Rotation())
add_polygon(sketch26, [(5.8, 2.3), (5.8, 0.3), (8.8, 0.3), (8.8, 2.3)])  # lines 0-3
sketch26.addConstraint([
    Sketcher.Constraint("Vertical", 0),
    Sketcher.Constraint("Horizontal", 1),
    Sketcher.Constraint("Vertical", 2),
    Sketcher.Constraint("Horizontal", 3),
    Sketcher.Constraint("DistanceX", 1, 1, 1, 2, Q("2.946 mm")),
    Sketcher.Constraint("DistanceY", 0, 2, 0, 1, Q("1.966 mm")),
    Sketcher.Constraint("DistanceY", -1, 1, 0, 2, Q("0.287 mm")),
    Sketcher.Constraint("DistanceX", -1, 1, 0, 2, Q("5.8295 mm")),
])
pad25 = doc.addObject("PartDesign::Pad", "Pad024")
body25.addObject(pad25)
pad25.Profile = sketch26
pad25.Length = 1
body26 = doc.addObject("PartDesign::Body", "Body025")

# Sketch on XY plane
sketch27 = doc.addObject("Sketcher::SketchObject", "Sketch026")
body26.addObject(sketch27)
sketch27.AttachmentSupport = (doc.getObject("XY_Plane025"), [""])
sketch27.MapMode = "FlatFace"
sketch27.AttachmentOffset = App.Placement(V(0, 0, 1.6), App.Rotation())
add_polygon(sketch27, [(30.9, 30.8), (30.9, 28.9), (33.9, 28.9), (33.9, 30.8)])  # lines 0-3
sketch27.addConstraint([
    Sketcher.Constraint("Vertical", 0),
    Sketcher.Constraint("Horizontal", 1),
    Sketcher.Constraint("Vertical", 2),
    Sketcher.Constraint("Horizontal", 3),
    Sketcher.Constraint("DistanceX", 1, 1, 1, 2, Q("2.946 mm")),
    Sketcher.Constraint("DistanceY", 0, 2, 0, 1, Q("1.966 mm")),
    Sketcher.Constraint("DistanceX", -1, 1, 0, 2, Q("30.912 mm")),
    Sketcher.Constraint("DistanceY", -1, 1, 0, 2, Q("28.862 mm")),
])
pad26 = doc.addObject("PartDesign::Pad", "Pad025")
body26.addObject(pad26)
pad26.Profile = sketch27
pad26.Length = 1
body27 = doc.addObject("PartDesign::Body", "Body026")

# Sketch on XY plane
sketch28 = doc.addObject("Sketcher::SketchObject", "Sketch027")
body27.addObject(sketch28)
sketch28.AttachmentSupport = (doc.getObject("XY_Plane026"), [""])
sketch28.MapMode = "FlatFace"
sketch28.AttachmentOffset = App.Placement(V(0, 0, 1.6), App.Rotation())
add_polygon(sketch28, [(35.4, 26.7), (35.4, 24.7), (38.3, 24.7), (38.3, 26.7)])  # lines 0-3
sketch28.addConstraint([
    Sketcher.Constraint("Vertical", 0),
    Sketcher.Constraint("Horizontal", 1),
    Sketcher.Constraint("Vertical", 2),
    Sketcher.Constraint("Horizontal", 3),
    Sketcher.Constraint("DistanceX", 1, 1, 1, 2, Q("2.946 mm")),
    Sketcher.Constraint("DistanceY", 0, 2, 0, 1, Q("1.966 mm")),
    Sketcher.Constraint("DistanceX", -1, 1, 0, 2, Q("35.357 mm")),
    Sketcher.Constraint("DistanceY", -1, 1, 0, 2, Q("24.7345 mm")),
])
pad27 = doc.addObject("PartDesign::Pad", "Pad026")
body27.addObject(pad27)
pad27.Profile = sketch28
pad27.Length = 1
body28 = doc.addObject("PartDesign::Body", "Body027")

# Sketch on XY plane
sketch29 = doc.addObject("Sketcher::SketchObject", "Sketch028")
body28.addObject(sketch29)
sketch29.AttachmentSupport = (doc.getObject("XY_Plane027"), [""])
sketch29.MapMode = "FlatFace"
sketch29.AttachmentOffset = App.Placement(V(0, 0, 1.6), App.Rotation())
add_polygon(sketch29, [(30.9, 28.6), (30.9, 26.6), (33.9, 26.6), (33.9, 28.6)])  # lines 0-3
sketch29.addConstraint([
    Sketcher.Constraint("Vertical", 0),
    Sketcher.Constraint("Horizontal", 1),
    Sketcher.Constraint("Vertical", 2),
    Sketcher.Constraint("Horizontal", 3),
    Sketcher.Constraint("DistanceX", 1, 1, 1, 2, Q("2.946 mm")),
    Sketcher.Constraint("DistanceY", 0, 2, 0, 1, Q("1.966 mm")),
    Sketcher.Constraint("DistanceX", -1, 1, 0, 2, Q("30.912 mm")),
    Sketcher.Constraint("DistanceY", -1, 1, 0, 2, Q("26.6395 mm")),
])
pad28 = doc.addObject("PartDesign::Pad", "Pad027")
body28.addObject(pad28)
pad28.Profile = sketch29
pad28.Length = 1
body29 = doc.addObject("PartDesign::Body", "Body028")

# Sketch on XY plane
sketch30 = doc.addObject("Sketcher::SketchObject", "Sketch029")
body29.addObject(sketch30)
sketch30.AttachmentSupport = (doc.getObject("XY_Plane028"), [""])
sketch30.MapMode = "FlatFace"
sketch30.AttachmentOffset = App.Placement(V(0, 0, 1.6), App.Rotation())
add_polygon(sketch30, [(30.3, 6.7), (30.3, 4.7), (33.2, 4.7), (33.2, 6.7)])  # lines 0-3
sketch30.addConstraint([
    Sketcher.Constraint("Vertical", 0),
    Sketcher.Constraint("Horizontal", 1),
    Sketcher.Constraint("Vertical", 2),
    Sketcher.Constraint("Horizontal", 3),
    Sketcher.Constraint("DistanceX", 1, 1, 1, 2, Q("2.946 mm")),
    Sketcher.Constraint("DistanceY", 0, 2, 0, 1, Q("1.966 mm")),
    Sketcher.Constraint("DistanceX", -1, 1, 0, 2, Q("30.277 mm")),
    Sketcher.Constraint("DistanceY", -1, 1, 0, 2, Q("4.732 mm")),
])
pad29 = doc.addObject("PartDesign::Pad", "Pad028")
body29.addObject(pad29)
pad29.Profile = sketch30
pad29.Length = 1
body30 = doc.addObject("PartDesign::Body", "Body029")

# Sketch on XY plane
sketch31 = doc.addObject("Sketcher::SketchObject", "Sketch030")
body30.addObject(sketch31)
sketch31.AttachmentSupport = (doc.getObject("XY_Plane029"), [""])
sketch31.MapMode = "FlatFace"
sketch31.AttachmentOffset = App.Placement(V(0, 0, 1.6), App.Rotation())
add_polygon(sketch31, [(34.4, 10.8), (34.4, 8.9), (37.4, 8.9), (37.4, 10.8)])  # lines 0-3
sketch31.addConstraint([
    Sketcher.Constraint("Vertical", 0),
    Sketcher.Constraint("Horizontal", 1),
    Sketcher.Constraint("Vertical", 2),
    Sketcher.Constraint("Horizontal", 3),
    Sketcher.Constraint("DistanceX", 1, 1, 1, 2, Q("2.946 mm")),
    Sketcher.Constraint("DistanceY", 0, 2, 0, 1, Q("1.966 mm")),
    Sketcher.Constraint("DistanceX", -1, 1, 0, 2, Q("34.4045 mm")),
    Sketcher.Constraint("DistanceY", -1, 1, 0, 2, Q("8.8595 mm")),
])
pad30 = doc.addObject("PartDesign::Pad", "Pad029")
body30.addObject(pad30)
pad30.Profile = sketch31
pad30.Length = 1
body31 = doc.addObject("PartDesign::Body", "Body030")

# Sketch on XY plane
sketch32 = doc.addObject("Sketcher::SketchObject", "Sketch031")
body31.addObject(sketch32)
sketch32.AttachmentSupport = (doc.getObject("XY_Plane030"), [""])
sketch32.MapMode = "FlatFace"
sketch32.AttachmentOffset = App.Placement(V(0, 0, 1.6), App.Rotation())
add_polygon(sketch32, [(30.3, 8.9), (30.3, 7), (33.2, 7), (33.2, 8.9)])  # lines 0-3
sketch32.addConstraint([
    Sketcher.Constraint("Vertical", 0),
    Sketcher.Constraint("Horizontal", 1),
    Sketcher.Constraint("Vertical", 2),
    Sketcher.Constraint("Horizontal", 3),
    Sketcher.Constraint("DistanceX", 1, 1, 1, 2, Q("2.946 mm")),
    Sketcher.Constraint("DistanceY", 0, 2, 0, 1, Q("1.966 mm")),
    Sketcher.Constraint("DistanceX", -1, 1, 0, 2, Q("30.277 mm")),
    Sketcher.Constraint("DistanceY", -1, 1, 0, 2, Q("6.9545 mm")),
])
pad31 = doc.addObject("PartDesign::Pad", "Pad030")
body31.addObject(pad31)
pad31.Profile = sketch32
pad31.Length = 1
body32 = doc.addObject("PartDesign::Body", "Body031")

# Sketch on XY plane
sketch33 = doc.addObject("Sketcher::SketchObject", "Sketch032")
body32.addObject(sketch33)
sketch33.AttachmentSupport = (doc.getObject("XY_Plane031"), [""])
sketch33.MapMode = "FlatFace"
sketch33.AttachmentOffset = App.Placement(V(0, 0, 1.6), App.Rotation())
add_polygon(sketch33, [(2, 25), (2, 9), (27, 9), (27, 25)])  # lines 0-3
sketch33.addConstraint([
    Sketcher.Constraint("Vertical", 0),
    Sketcher.Constraint("Horizontal", 1),
    Sketcher.Constraint("Vertical", 2),
    Sketcher.Constraint("Horizontal", 3),
    Sketcher.Constraint("DistanceX", 1, 1, 1, 2, Q("25.52 mm")),
    Sketcher.Constraint("DistanceY", 0, 2, 0, 1, Q("15.994 mm")),
    Sketcher.Constraint("DistanceY", -1, 1, 0, 2, Q("8.89 mm")),
    Sketcher.Constraint("DistanceX", -1, 1, 0, 2, Q("1.5275 mm")),
])
pad32 = doc.addObject("PartDesign::Pad", "Pad031")
body32.addObject(pad32)
pad32.Profile = sketch33
pad32.Length = 1
body33 = doc.addObject("PartDesign::Body", "Body032")

# Sketch on XY plane
sketch34 = doc.addObject("Sketcher::SketchObject", "Sketch033")
body33.addObject(sketch34)
sketch34.AttachmentSupport = (doc.getObject("XY_Plane032"), [""])
sketch34.MapMode = "FlatFace"
add_polygon(sketch34, [(-1, 30), (-1, 4), (39, 4), (39, 30)])  # lines 0-3
sketch34.addConstraint([
    Sketcher.Constraint("Vertical", 0),
    Sketcher.Constraint("Horizontal", 1),
    Sketcher.Constraint("Vertical", 2),
    Sketcher.Constraint("Horizontal", 3),
    Sketcher.Constraint("DistanceX", 1, 1, 1, 2, Q("39.49 mm")),
    Sketcher.Constraint("DistanceY", 0, 2, 0, 1, Q("26.214 mm")),
    Sketcher.Constraint("DistanceY", -1, 1, 0, 2, Q("3.75 mm")),
    Sketcher.Constraint("DistanceX", 0, 2, -1, 1, Q("0.695 mm")),
])
pad33 = doc.addObject("PartDesign::Pad", "Pad032")
body33.addObject(pad33)
pad33.Profile = sketch34
pad33.Length = 1
pad33.Reversed = True
body34 = doc.addObject("PartDesign::Body", "Body033")

# Sketch on XY plane
sketch35 = doc.addObject("Sketcher::SketchObject", "Sketch034")
body34.addObject(sketch35)
sketch35.AttachmentSupport = (doc.getObject("XY_Plane033"), [""])
sketch35.MapMode = "FlatFace"
add_polygon(sketch35, [(39.9, 24.5), (39.9, 9.1), (43.2, 9.1), (43.2, 24.5)])  # lines 0-3
sketch35.addConstraint([
    Sketcher.Constraint("Vertical", 0),
    Sketcher.Constraint("Horizontal", 1),
    Sketcher.Constraint("Vertical", 2),
    Sketcher.Constraint("Horizontal", 3),
    Sketcher.Constraint("DistanceY", 0, 2, 0, 1, Q("15.36 mm")),
    Sketcher.Constraint("DistanceX", 1, 1, 1, 2, Q("3.354 mm")),
    Sketcher.Constraint("DistanceX", -1, 1, 1, 2, Q("43.24 mm")),
    Sketcher.Constraint("DistanceY", -1, 1, 0, 2, Q("9.1475 mm")),
])
pad34 = doc.addObject("PartDesign::Pad", "Pad033")
body34.addObject(pad34)
pad34.Profile = sketch35
pad34.Length = 1
pad34.Reversed = True

doc.recompute()
